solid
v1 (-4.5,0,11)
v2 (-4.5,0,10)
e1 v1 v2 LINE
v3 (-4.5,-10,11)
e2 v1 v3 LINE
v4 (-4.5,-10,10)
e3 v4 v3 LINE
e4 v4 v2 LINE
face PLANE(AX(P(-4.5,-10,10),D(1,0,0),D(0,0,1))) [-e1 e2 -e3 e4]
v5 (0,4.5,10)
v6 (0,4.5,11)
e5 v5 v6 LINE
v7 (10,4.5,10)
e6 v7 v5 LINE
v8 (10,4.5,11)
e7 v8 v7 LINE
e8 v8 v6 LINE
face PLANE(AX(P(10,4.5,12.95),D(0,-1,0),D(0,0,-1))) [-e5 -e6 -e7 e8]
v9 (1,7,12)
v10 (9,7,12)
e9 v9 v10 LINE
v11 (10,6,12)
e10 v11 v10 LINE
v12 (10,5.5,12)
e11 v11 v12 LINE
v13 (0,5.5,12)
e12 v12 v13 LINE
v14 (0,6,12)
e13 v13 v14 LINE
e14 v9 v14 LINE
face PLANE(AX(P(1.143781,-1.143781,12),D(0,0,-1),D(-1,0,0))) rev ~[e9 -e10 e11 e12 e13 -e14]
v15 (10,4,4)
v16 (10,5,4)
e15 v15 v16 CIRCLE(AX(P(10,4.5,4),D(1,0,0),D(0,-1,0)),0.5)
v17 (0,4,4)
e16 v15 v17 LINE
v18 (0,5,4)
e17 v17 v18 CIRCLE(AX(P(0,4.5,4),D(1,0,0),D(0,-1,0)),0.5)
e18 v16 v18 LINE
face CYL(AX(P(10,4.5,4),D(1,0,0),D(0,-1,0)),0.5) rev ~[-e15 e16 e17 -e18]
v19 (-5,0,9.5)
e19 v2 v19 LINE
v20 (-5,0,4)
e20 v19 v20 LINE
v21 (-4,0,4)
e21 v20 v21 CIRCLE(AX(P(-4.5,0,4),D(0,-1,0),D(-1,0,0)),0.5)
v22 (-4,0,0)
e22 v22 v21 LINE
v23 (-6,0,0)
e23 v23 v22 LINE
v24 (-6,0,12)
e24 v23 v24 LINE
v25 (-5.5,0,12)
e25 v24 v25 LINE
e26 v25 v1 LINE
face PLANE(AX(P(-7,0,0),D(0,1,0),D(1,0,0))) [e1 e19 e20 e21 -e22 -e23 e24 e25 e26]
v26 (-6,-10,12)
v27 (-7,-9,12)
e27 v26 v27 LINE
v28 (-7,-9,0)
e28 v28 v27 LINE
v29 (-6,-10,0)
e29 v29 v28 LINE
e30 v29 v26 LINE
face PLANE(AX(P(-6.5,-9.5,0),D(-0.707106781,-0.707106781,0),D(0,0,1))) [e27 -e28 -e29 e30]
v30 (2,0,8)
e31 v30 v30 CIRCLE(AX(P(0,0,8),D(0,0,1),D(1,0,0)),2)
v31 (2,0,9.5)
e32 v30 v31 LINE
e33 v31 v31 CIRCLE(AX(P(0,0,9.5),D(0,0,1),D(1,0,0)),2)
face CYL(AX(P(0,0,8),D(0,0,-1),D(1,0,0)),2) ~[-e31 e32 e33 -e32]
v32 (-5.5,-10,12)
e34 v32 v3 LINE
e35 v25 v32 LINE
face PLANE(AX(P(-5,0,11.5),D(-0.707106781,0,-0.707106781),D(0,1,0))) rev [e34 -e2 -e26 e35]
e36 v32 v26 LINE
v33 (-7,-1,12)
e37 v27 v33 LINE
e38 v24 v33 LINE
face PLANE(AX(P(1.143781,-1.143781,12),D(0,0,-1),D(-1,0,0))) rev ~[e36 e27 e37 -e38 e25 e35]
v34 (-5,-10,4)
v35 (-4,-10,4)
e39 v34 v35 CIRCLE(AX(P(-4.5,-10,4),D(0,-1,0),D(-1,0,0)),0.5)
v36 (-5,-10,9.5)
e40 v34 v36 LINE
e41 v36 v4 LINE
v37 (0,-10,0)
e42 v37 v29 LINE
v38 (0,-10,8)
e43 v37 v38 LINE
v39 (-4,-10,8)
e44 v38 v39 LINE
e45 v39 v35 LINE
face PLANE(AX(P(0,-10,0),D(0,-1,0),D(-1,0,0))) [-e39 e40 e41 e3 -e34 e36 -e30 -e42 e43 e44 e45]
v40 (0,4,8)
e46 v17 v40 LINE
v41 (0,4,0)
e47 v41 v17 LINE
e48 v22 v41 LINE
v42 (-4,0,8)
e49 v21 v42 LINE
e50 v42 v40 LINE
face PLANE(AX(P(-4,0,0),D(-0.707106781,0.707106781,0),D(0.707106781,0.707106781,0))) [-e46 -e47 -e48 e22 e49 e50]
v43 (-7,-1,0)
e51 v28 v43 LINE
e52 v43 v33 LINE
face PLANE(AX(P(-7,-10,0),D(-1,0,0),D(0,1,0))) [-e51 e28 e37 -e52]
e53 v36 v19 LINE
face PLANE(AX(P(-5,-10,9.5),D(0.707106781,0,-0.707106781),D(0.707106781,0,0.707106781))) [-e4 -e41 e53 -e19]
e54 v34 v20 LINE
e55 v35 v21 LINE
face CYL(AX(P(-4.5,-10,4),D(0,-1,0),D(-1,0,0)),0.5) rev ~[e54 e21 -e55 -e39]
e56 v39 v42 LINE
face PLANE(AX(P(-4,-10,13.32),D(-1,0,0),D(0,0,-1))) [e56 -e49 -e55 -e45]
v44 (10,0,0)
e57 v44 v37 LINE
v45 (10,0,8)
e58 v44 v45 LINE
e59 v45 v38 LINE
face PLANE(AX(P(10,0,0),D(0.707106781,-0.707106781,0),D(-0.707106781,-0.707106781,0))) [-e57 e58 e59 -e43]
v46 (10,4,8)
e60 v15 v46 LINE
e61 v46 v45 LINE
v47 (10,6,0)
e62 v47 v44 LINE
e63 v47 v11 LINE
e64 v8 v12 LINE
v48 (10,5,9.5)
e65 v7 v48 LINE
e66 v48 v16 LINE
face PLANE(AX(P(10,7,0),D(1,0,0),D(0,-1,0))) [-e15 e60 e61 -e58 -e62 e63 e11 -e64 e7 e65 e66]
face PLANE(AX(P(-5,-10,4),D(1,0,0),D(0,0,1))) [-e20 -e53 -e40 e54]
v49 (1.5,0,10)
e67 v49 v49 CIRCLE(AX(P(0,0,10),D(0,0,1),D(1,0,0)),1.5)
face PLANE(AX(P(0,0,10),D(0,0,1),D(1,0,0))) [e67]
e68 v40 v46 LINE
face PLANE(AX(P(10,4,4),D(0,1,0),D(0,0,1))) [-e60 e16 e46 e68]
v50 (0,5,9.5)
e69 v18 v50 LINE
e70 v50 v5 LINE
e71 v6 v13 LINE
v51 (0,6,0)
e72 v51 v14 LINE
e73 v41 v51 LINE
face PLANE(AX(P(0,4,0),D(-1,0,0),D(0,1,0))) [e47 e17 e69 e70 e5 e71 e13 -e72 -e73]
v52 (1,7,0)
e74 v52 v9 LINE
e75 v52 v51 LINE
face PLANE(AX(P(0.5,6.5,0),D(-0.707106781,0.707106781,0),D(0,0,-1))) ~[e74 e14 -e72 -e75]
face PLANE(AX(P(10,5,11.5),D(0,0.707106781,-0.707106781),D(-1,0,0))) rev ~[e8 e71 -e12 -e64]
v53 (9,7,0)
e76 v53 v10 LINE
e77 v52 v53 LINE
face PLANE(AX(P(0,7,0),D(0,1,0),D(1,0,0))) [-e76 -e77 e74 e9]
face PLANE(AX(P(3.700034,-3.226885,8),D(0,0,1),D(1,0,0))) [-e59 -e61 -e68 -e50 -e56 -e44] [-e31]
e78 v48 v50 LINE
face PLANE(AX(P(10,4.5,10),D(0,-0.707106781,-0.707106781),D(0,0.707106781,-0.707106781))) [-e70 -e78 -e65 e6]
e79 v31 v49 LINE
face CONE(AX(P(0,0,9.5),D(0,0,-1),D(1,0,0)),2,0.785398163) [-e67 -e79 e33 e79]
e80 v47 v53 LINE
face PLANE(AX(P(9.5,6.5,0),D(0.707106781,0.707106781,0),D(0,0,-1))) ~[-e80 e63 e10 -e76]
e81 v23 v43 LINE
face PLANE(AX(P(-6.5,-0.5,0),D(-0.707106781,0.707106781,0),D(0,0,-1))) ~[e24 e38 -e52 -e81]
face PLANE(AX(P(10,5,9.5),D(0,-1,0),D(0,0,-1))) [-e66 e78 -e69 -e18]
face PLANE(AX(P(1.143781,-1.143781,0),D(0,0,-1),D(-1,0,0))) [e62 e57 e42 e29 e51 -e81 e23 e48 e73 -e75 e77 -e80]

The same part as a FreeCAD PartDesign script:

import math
import FreeCAD as App
import Part
import Sketcher
from FreeCAD import Vector
Q = App.Units.Quantity


def edges_at(feature, points):
    """Names of the edges that pass closest to the given points."""
    edges = feature.Shape.Edges
    near = lambda p: min(range(len(edges)), key=lambda i: edges[i].distToShape(Part.Vertex(*p))[0])
    return sorted({f"Edge{near(p) + 1}" for p in points})


def add_polygon(sketch, points):
    """Adds a closed chain of lines whose ends are joined by coincident constraints."""
    first, n = sketch.GeometryCount, len(points)
    for a, b in zip(points, points[1:] + points[:1]):
        sketch.addGeometry(Part.LineSegment(App.Vector(*a, 0), App.Vector(*b, 0)), False)
    for i in range(n):
        sketch.addConstraint(Sketcher.Constraint("Coincident", first + i, 2, first + (i + 1) % n, 1))

doc = App.newDocument("Part")
params = doc.addObject("Spreadsheet::Sheet", "Params")
for row, (alias, value) in enumerate([
    ("sketch1_width", "10 mm"),
    ("sketch1_width2", "3 mm"),
    ("sketch1_width3", "7 mm"),
    ("pad1_length", "12 mm"),
    ("sketch2_radius", "0.5 mm"),
    ("sketch2_height", "5.5 mm"),
    ("sketch2_height2", "3.32 mm"),
    ("pocket1_length", "10.1 mm"),
    ("sketch3_radius", "0.5 mm"),
    ("sketch3_height", "5.5 mm"),
    ("sketch3_height2", "2.95 mm"),
    ("pocket2_length", "10.1 mm"),
    ("pocket3_length", "4 mm"),
    ("sketch5_diameter", "4 mm"),
    ("pad2_length", "2 mm"),
    ("chamfer_size", "0.5 mm"),
    ("chamfer2_size", "1 mm"),
], start=1):
    params.set(f"A{row}", alias)
    params.set(f"B{row}", "=" + value)
    params.setAlias(f"B{row}", alias)

body = doc.addObject("PartDesign::Body", "Body")

# Sketch on XY plane
sketch1 = body.newObject("Sketcher::SketchObject", "Sketch")
sketch1.AttachmentSupport = (doc.getObject("XY_Plane"), [""])
sketch1.MapMode = "FlatFace"
add_polygon(sketch1, [(10, 7), (0, 7), (0, 4), (-4, 0), (-7, 0), (-7, -10), (0, -10), (10, 0)])  # lines 0-7
sketch1.addConstraint(Sketcher.Constraint("Horizontal", 0))
sketch1.addConstraint(Sketcher.Constraint("Vertical", 1))
sketch1.addConstraint(Sketcher.Constraint("Horizontal", 3))
sketch1.addConstraint(Sketcher.Constraint("Vertical", 4))
sketch1.addConstraint(Sketcher.Constraint("Horizontal", 5))
sketch1.addConstraint(Sketcher.Constraint("Vertical", 7))
sketch1.addConstraint(Sketcher.Constraint("PointOnObject", 0, 2, -2))
sketch1.addConstraint(Sketcher.Constraint("PointOnObject", 2, 2, -1))
sketch1.addConstraint(Sketcher.Constraint("PointOnObject", 5, 2, -2))
sketch1.addConstraint(Sketcher.Constraint("PointOnObject", 6, 2, -1))
sketch1.addConstraint(Sketcher.Constraint("Parallel", 2, 6))
sketch1.addConstraint(Sketcher.Constraint("Equal", 3, 1))
sketch1.addConstraint(Sketcher.Constraint("Equal", 0, 4))
sketch1.addConstraint(Sketcher.Constraint("DistanceX", 0, 2, 0, 1, 10.0))
sketch1.addConstraint(Sketcher.Constraint("DistanceX", 3, 2, 3, 1, 3.0))
sketch1.addConstraint(Sketcher.Constraint("DistanceX", 5, 1, 5, 2, 7.0))
sketch1.setExpression("Constraints[21]", "Params.sketch1_width")
sketch1.setExpression("Constraints[22]", "Params.sketch1_width2")
sketch1.setExpression("Constraints[23]", "Params.sketch1_width3")
pad1 = body.newObject("PartDesign::Pad", "Pad")
pad1.Profile = sketch1
pad1.setExpression("Length", "Params.pad1_length")

# Sketch on XZ plane
sketch2 = body.newObject("Sketcher::SketchObject", "Sketch001")
sketch2.AttachmentSupport = (doc.getObject("XZ_Plane"), [""])
sketch2.MapMode = "FlatFace"
sketch2.AttachmentOffset = App.Placement(Vector(0, 0, 10), App.Rotation())
sketch2.addGeometry(Part.LineSegment(Vector(-4.5, 13.3, 0), Vector(-4.5, 10, 0)), False)
sketch2.addGeometry(Part.LineSegment(Vector(-4.5, 10, 0), Vector(-5, 9.5, 0)), False)
sketch2.addGeometry(Part.LineSegment(Vector(-5, 9.5, 0), Vector(-5, 4, 0)), False)
sketch2.addGeometry(Part.ArcOfCircle(Part.Circle(Vector(-4.5, 4, 0), Vector(0, 0, 1), 0.5), math.radians(180), math.radians(360)), False)
sketch2.addGeometry(Part.LineSegment(Vector(-4, 4, 0), Vector(-4, 13.3, 0)), False)
sketch2.addGeometry(Part.LineSegment(Vector(-4, 13.3, 0), Vector(-4.5, 13.3, 0)), False)
sketch2.addConstraint(Sketcher.Constraint("Coincident", 0, 2, 1, 1))
sketch2.addConstraint(Sketcher.Constraint("Coincident", 1, 2, 2, 1))
sketch2.addConstraint(Sketcher.Constraint("Tangent", 2, 2, 3, 1))
sketch2.addConstraint(Sketcher.Constraint("Tangent", 3, 2, 4, 1))
sketch2.addConstraint(Sketcher.Constraint("Coincident", 4, 2, 5, 1))
sketch2.addConstraint(Sketcher.Constraint("Coincident", 5, 2, 0, 1))
sketch2.addConstraint(Sketcher.Constraint("Vertical", 0))
sketch2.addConstraint(Sketcher.Constraint("Vertical", 2))
sketch2.addConstraint(Sketcher.Constraint("Vertical", 4))
sketch2.addConstraint(Sketcher.Constraint("Horizontal", 5))
sketch2.addConstraint(Sketcher.Constraint("Vertical", 3, 3, 0, 2))
sketch2.addConstraint(Sketcher.Constraint("Radius", 3, 0.5))
sketch2.addConstraint(Sketcher.Constraint("Angle", 1, Q("-135 deg")))
sketch2.addConstraint(Sketcher.Constraint("DistanceY", 2, 2, 2, 1, 5.5))
sketch2.addConstraint(Sketcher.Constraint("DistanceY", -1, 1, 3, 3, 4.0))
sketch2.addConstraint(Sketcher.Constraint("DistanceX", 1, 2, -1, 1, 5.0))
sketch2.addConstraint(Sketcher.Constraint("DistanceY", 0, 2, 0, 1, 3.32))
sketch2.setExpression("Constraints[11]", "Params.sketch2_radius")
sketch2.setExpression("Constraints[13]", "Params.sketch2_height")
sketch2.setExpression("Constraints[16]", "Params.sketch2_height2")
pocket1 = body.newObject("PartDesign::Pocket", "Pocket")
pocket1.Profile = sketch2
pocket1.setExpression("Length", "Params.pocket1_length")

# Sketch on YZ plane
sketch3 = body.newObject("Sketcher::SketchObject", "Sketch002")
sketch3.AttachmentSupport = (doc.getObject("YZ_Plane"), [""])
sketch3.MapMode = "FlatFace"
sketch3.AttachmentOffset = App.Placement(Vector(0, 0, 10), App.Rotation())
sketch3.addGeometry(Part.LineSegment(Vector(4.5, 10, 0), Vector(4.5, 12.9, 0)), False)
sketch3.addGeometry(Part.LineSegment(Vector(4.5, 12.9, 0), Vector(4, 12.9, 0)), False)
sketch3.addGeometry(Part.LineSegment(Vector(4, 12.9, 0), Vector(4, 4, 0)), False)
sketch3.addGeometry(Part.ArcOfCircle(Part.Circle(Vector(4.5, 4, 0), Vector(0, 0, 1), 0.5), math.radians(180), math.radians(360)), False)
sketch3.addGeometry(Part.LineSegment(Vector(5, 4, 0), Vector(5, 9.5, 0)), False)
sketch3.addGeometry(Part.LineSegment(Vector(5, 9.5, 0), Vector(4.5, 10, 0)), False)
sketch3.addConstraint(Sketcher.Constraint("Coincident", 0, 2, 1, 1))
sketch3.addConstraint(Sketcher.Constraint("Coincident", 1, 2, 2, 1))
sketch3.addConstraint(Sketcher.Constraint("Tangent", 2, 2, 3, 1))
sketch3.addConstraint(Sketcher.Constraint("Tangent", 3, 2, 4, 1))
sketch3.addConstraint(Sketcher.Constraint("Coincident", 4, 2, 5, 1))
sketch3.addConstraint(Sketcher.Constraint("Coincident", 5, 2, 0, 1))
sketch3.addConstraint(Sketcher.Constraint("Vertical", 0))
sketch3.addConstraint(Sketcher.Constraint("Horizontal", 1))
sketch3.addConstraint(Sketcher.Constraint("Vertical", 2))
sketch3.addConstraint(Sketcher.Constraint("Vertical", 4))
sketch3.addConstraint(Sketcher.Constraint("Vertical", 3, 3, 0, 2))
sketch3.addConstraint(Sketcher.Constraint("Radius", 3, 0.5))
sketch3.addConstraint(Sketcher.Constraint("Angle", 5, Q("135 deg")))
sketch3.addConstraint(Sketcher.Constraint("DistanceY", 4, 1, 4, 2, 5.5))
sketch3.addConstraint(Sketcher.Constraint("DistanceY", -1, 1, 3, 3, 4.0))
sketch3.addConstraint(Sketcher.Constraint("DistanceX", -1, 1, 1, 2, 4.0))
sketch3.addConstraint(Sketcher.Constraint("DistanceY", 0, 1, 0, 2, 2.95))
sketch3.setExpression("Constraints[11]", "Params.sketch3_radius")
sketch3.setExpression("Constraints[13]", "Params.sketch3_height")
sketch3.setExpression("Constraints[16]", "Params.sketch3_height2")
pocket2 = body.newObject("PartDesign::Pocket", "Pocket001")
pocket2.Profile = sketch3
pocket2.setExpression("Length", "Params.pocket2_length")

# Sketch on XY plane
sketch4 = body.newObject("Sketcher::SketchObject", "Sketch003")
sketch4.AttachmentSupport = (doc.getObject("XY_Plane"), [""])
sketch4.MapMode = "FlatFace"
sketch4.AttachmentOffset = App.Placement(Vector(0, 0, 12), App.Rotation())
add_polygon(sketch4, [(-4, 4), (-4, -11), (12, -11), (12, 4)])  # lines 0-3
sketch4.addConstraint(Sketcher.Constraint("Vertical", 0))
sketch4.addConstraint(Sketcher.Constraint("Horizontal", 1))
sketch4.addConstraint(Sketcher.Constraint("Vertical", 2))
sketch4.addConstraint(Sketcher.Constraint("Horizontal", 3))
sketch4.addConstraint(Sketcher.Constraint("DistanceY", 0, 2, 0, 1, 14.91592))
sketch4.addConstraint(Sketcher.Constraint("DistanceX", 1, 1, 1, 2, 15.841853))
sketch4.addConstraint(Sketcher.Constraint("DistanceX", -1, 1, 1, 2, 11.620961))
sketch4.addConstraint(Sketcher.Constraint("DistanceY", 0, 2, -1, 1, 10.684845))
pocket3 = body.newObject("PartDesign::Pocket", "Pocket002")
pocket3.Profile = sketch4
pocket3.setExpression("Length", "Params.pocket3_length")

# Sketch on XY plane
sketch5 = body.newObject("Sketcher::SketchObject", "Sketch004")
sketch5.AttachmentSupport = (doc.getObject("XY_Plane"), [""])
sketch5.MapMode = "FlatFace"
sketch5.AttachmentOffset = App.Placement(Vector(0, 0, 8), App.Rotation())
sketch5.addGeometry(Part.Circle(Vector(0, 0, 0), Vector(0, 0, 1), 2), False)
sketch5.addConstraint(Sketcher.Constraint("Coincident", 0, 3, -1, 1))
sketch5.addConstraint(Sketcher.Constraint("Diameter", 0, 4.0))
sketch5.setExpression("Constraints[1]", "Params.sketch5_diameter")
pad2 = body.newObject("PartDesign::Pad", "Pad001")
pad2.Profile = sketch5
pad2.setExpression("Length", "Params.pad2_length")
doc.recompute()

chamfer = body.newObject("PartDesign::Chamfer", "Chamfer")
chamfer.Base = (pad2, edges_at(pad2, [(-2, 0, 10)]))
chamfer.setExpression("Size", "Params.chamfer_size")
doc.recompute()

chamfer2 = body.newObject("PartDesign::Chamfer", "Chamfer001")
chamfer2.Base = (chamfer, edges_at(chamfer, [
    (-7, -10, 6),
    (-7, 0, 6),
    (0, 7, 6),
    (10, 7, 6),
    (5, 4.5, 12),
    (-4.5, -5, 12),
]))
chamfer2.setExpression("Size", "Params.chamfer2_size")

doc.recompute()
